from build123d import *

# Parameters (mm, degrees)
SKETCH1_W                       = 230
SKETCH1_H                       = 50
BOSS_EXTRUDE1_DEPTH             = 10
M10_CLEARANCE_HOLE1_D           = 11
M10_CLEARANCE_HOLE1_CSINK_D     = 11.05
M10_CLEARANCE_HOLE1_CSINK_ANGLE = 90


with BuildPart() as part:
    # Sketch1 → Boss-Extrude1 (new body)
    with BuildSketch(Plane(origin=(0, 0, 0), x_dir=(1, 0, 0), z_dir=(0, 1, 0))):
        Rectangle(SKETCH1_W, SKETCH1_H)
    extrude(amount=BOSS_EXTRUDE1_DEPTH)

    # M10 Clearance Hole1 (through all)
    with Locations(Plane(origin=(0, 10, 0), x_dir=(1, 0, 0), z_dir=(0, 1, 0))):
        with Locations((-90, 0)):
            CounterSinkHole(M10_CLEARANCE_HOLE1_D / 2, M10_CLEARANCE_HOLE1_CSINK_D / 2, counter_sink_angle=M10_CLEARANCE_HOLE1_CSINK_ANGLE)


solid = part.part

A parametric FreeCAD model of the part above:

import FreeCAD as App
import Part
import Sketcher
from FreeCAD import Vector

doc = App.newDocument("Part")
body = doc.addObject("PartDesign::Body", "Body")

# Sketch on XZ plane
sketch1 = body.newObject("Sketcher::SketchObject", "Sketch")
sketch1.AttachmentSupport = (doc.getObject("XZ_Plane"), [""])
sketch1.MapMode = "FlatFace"
sketch1.addGeometry([
    Part.LineSegment(Vector(-115, -25, 0), Vector(-115, 25, 0)),
    Part.LineSegment(Vector(-115, 25, 0), Vector(115, 25, 0)),
    Part.LineSegment(Vector(115, 25, 0), Vector(115, -25, 0)),
    Part.LineSegment(Vector(115, -25, 0), Vector(-115, -25, 0)),
], False)
sketch1.addConstraint([
    Sketcher.Constraint("Coincident", 0, 2, 1, 1),
    Sketcher.Constraint("Coincident", 1, 2, 2, 1),
    Sketcher.Constraint("Coincident", 2, 2, 3, 1),
    Sketcher.Constraint("Coincident", 3, 2, 0, 1),
    Sketcher.Constraint("Vertical", 0),
    Sketcher.Constraint("Horizontal", 1),
    Sketcher.Constraint("Vertical", 2),
    Sketcher.Constraint("Horizontal", 3),
    Sketcher.Constraint("Symmetric", 0, 2, 2, 2, -1, 1),
    Sketcher.Constraint("DistanceX", 1, 1, 1, 2, 230.0),
    Sketcher.Constraint("DistanceY", 0, 1, 0, 2, 50.0),
])
pad1 = body.newObject("PartDesign::Pad", "Pad")
pad1.Profile = sketch1
pad1.Length = 10
pad1.Reversed = True

# Sketch on XZ plane
sketch2 = body.newObject("Sketcher::SketchObject", "Sketch001")
sketch2.AttachmentSupport = (doc.getObject("XZ_Plane"), [""])
sketch2.MapMode = "FlatFace"
sketch2.AttachmentOffset = App.Placement(Vector(0, 0, -10), App.Rotation())
sketch2.addGeometry(Part.Circle(Vector(-90, 0, 0), Vector(0, 0, 1), 6), False)
sketch2.addConstraint([
    Sketcher.Constraint("PointOnObject", 0, 3, -1),
    Sketcher.Constraint("Diameter", 0, 11.0),
    Sketcher.Constraint("DistanceX", 0, 3, -1, 1, 90.0),
])
doc.recompute()
hole = body.newObject("PartDesign::Hole", "Hole")
hole.Profile = sketch2
hole.ThreadType = "None"
hole.Diameter = 11
hole.DepthType = "ThroughAll"
hole.HoleCutType = "Countersink"
hole.HoleCutDiameter = 11.05
hole.HoleCutCountersinkAngle = 90
hole.Reversed = True

doc.recompute()
